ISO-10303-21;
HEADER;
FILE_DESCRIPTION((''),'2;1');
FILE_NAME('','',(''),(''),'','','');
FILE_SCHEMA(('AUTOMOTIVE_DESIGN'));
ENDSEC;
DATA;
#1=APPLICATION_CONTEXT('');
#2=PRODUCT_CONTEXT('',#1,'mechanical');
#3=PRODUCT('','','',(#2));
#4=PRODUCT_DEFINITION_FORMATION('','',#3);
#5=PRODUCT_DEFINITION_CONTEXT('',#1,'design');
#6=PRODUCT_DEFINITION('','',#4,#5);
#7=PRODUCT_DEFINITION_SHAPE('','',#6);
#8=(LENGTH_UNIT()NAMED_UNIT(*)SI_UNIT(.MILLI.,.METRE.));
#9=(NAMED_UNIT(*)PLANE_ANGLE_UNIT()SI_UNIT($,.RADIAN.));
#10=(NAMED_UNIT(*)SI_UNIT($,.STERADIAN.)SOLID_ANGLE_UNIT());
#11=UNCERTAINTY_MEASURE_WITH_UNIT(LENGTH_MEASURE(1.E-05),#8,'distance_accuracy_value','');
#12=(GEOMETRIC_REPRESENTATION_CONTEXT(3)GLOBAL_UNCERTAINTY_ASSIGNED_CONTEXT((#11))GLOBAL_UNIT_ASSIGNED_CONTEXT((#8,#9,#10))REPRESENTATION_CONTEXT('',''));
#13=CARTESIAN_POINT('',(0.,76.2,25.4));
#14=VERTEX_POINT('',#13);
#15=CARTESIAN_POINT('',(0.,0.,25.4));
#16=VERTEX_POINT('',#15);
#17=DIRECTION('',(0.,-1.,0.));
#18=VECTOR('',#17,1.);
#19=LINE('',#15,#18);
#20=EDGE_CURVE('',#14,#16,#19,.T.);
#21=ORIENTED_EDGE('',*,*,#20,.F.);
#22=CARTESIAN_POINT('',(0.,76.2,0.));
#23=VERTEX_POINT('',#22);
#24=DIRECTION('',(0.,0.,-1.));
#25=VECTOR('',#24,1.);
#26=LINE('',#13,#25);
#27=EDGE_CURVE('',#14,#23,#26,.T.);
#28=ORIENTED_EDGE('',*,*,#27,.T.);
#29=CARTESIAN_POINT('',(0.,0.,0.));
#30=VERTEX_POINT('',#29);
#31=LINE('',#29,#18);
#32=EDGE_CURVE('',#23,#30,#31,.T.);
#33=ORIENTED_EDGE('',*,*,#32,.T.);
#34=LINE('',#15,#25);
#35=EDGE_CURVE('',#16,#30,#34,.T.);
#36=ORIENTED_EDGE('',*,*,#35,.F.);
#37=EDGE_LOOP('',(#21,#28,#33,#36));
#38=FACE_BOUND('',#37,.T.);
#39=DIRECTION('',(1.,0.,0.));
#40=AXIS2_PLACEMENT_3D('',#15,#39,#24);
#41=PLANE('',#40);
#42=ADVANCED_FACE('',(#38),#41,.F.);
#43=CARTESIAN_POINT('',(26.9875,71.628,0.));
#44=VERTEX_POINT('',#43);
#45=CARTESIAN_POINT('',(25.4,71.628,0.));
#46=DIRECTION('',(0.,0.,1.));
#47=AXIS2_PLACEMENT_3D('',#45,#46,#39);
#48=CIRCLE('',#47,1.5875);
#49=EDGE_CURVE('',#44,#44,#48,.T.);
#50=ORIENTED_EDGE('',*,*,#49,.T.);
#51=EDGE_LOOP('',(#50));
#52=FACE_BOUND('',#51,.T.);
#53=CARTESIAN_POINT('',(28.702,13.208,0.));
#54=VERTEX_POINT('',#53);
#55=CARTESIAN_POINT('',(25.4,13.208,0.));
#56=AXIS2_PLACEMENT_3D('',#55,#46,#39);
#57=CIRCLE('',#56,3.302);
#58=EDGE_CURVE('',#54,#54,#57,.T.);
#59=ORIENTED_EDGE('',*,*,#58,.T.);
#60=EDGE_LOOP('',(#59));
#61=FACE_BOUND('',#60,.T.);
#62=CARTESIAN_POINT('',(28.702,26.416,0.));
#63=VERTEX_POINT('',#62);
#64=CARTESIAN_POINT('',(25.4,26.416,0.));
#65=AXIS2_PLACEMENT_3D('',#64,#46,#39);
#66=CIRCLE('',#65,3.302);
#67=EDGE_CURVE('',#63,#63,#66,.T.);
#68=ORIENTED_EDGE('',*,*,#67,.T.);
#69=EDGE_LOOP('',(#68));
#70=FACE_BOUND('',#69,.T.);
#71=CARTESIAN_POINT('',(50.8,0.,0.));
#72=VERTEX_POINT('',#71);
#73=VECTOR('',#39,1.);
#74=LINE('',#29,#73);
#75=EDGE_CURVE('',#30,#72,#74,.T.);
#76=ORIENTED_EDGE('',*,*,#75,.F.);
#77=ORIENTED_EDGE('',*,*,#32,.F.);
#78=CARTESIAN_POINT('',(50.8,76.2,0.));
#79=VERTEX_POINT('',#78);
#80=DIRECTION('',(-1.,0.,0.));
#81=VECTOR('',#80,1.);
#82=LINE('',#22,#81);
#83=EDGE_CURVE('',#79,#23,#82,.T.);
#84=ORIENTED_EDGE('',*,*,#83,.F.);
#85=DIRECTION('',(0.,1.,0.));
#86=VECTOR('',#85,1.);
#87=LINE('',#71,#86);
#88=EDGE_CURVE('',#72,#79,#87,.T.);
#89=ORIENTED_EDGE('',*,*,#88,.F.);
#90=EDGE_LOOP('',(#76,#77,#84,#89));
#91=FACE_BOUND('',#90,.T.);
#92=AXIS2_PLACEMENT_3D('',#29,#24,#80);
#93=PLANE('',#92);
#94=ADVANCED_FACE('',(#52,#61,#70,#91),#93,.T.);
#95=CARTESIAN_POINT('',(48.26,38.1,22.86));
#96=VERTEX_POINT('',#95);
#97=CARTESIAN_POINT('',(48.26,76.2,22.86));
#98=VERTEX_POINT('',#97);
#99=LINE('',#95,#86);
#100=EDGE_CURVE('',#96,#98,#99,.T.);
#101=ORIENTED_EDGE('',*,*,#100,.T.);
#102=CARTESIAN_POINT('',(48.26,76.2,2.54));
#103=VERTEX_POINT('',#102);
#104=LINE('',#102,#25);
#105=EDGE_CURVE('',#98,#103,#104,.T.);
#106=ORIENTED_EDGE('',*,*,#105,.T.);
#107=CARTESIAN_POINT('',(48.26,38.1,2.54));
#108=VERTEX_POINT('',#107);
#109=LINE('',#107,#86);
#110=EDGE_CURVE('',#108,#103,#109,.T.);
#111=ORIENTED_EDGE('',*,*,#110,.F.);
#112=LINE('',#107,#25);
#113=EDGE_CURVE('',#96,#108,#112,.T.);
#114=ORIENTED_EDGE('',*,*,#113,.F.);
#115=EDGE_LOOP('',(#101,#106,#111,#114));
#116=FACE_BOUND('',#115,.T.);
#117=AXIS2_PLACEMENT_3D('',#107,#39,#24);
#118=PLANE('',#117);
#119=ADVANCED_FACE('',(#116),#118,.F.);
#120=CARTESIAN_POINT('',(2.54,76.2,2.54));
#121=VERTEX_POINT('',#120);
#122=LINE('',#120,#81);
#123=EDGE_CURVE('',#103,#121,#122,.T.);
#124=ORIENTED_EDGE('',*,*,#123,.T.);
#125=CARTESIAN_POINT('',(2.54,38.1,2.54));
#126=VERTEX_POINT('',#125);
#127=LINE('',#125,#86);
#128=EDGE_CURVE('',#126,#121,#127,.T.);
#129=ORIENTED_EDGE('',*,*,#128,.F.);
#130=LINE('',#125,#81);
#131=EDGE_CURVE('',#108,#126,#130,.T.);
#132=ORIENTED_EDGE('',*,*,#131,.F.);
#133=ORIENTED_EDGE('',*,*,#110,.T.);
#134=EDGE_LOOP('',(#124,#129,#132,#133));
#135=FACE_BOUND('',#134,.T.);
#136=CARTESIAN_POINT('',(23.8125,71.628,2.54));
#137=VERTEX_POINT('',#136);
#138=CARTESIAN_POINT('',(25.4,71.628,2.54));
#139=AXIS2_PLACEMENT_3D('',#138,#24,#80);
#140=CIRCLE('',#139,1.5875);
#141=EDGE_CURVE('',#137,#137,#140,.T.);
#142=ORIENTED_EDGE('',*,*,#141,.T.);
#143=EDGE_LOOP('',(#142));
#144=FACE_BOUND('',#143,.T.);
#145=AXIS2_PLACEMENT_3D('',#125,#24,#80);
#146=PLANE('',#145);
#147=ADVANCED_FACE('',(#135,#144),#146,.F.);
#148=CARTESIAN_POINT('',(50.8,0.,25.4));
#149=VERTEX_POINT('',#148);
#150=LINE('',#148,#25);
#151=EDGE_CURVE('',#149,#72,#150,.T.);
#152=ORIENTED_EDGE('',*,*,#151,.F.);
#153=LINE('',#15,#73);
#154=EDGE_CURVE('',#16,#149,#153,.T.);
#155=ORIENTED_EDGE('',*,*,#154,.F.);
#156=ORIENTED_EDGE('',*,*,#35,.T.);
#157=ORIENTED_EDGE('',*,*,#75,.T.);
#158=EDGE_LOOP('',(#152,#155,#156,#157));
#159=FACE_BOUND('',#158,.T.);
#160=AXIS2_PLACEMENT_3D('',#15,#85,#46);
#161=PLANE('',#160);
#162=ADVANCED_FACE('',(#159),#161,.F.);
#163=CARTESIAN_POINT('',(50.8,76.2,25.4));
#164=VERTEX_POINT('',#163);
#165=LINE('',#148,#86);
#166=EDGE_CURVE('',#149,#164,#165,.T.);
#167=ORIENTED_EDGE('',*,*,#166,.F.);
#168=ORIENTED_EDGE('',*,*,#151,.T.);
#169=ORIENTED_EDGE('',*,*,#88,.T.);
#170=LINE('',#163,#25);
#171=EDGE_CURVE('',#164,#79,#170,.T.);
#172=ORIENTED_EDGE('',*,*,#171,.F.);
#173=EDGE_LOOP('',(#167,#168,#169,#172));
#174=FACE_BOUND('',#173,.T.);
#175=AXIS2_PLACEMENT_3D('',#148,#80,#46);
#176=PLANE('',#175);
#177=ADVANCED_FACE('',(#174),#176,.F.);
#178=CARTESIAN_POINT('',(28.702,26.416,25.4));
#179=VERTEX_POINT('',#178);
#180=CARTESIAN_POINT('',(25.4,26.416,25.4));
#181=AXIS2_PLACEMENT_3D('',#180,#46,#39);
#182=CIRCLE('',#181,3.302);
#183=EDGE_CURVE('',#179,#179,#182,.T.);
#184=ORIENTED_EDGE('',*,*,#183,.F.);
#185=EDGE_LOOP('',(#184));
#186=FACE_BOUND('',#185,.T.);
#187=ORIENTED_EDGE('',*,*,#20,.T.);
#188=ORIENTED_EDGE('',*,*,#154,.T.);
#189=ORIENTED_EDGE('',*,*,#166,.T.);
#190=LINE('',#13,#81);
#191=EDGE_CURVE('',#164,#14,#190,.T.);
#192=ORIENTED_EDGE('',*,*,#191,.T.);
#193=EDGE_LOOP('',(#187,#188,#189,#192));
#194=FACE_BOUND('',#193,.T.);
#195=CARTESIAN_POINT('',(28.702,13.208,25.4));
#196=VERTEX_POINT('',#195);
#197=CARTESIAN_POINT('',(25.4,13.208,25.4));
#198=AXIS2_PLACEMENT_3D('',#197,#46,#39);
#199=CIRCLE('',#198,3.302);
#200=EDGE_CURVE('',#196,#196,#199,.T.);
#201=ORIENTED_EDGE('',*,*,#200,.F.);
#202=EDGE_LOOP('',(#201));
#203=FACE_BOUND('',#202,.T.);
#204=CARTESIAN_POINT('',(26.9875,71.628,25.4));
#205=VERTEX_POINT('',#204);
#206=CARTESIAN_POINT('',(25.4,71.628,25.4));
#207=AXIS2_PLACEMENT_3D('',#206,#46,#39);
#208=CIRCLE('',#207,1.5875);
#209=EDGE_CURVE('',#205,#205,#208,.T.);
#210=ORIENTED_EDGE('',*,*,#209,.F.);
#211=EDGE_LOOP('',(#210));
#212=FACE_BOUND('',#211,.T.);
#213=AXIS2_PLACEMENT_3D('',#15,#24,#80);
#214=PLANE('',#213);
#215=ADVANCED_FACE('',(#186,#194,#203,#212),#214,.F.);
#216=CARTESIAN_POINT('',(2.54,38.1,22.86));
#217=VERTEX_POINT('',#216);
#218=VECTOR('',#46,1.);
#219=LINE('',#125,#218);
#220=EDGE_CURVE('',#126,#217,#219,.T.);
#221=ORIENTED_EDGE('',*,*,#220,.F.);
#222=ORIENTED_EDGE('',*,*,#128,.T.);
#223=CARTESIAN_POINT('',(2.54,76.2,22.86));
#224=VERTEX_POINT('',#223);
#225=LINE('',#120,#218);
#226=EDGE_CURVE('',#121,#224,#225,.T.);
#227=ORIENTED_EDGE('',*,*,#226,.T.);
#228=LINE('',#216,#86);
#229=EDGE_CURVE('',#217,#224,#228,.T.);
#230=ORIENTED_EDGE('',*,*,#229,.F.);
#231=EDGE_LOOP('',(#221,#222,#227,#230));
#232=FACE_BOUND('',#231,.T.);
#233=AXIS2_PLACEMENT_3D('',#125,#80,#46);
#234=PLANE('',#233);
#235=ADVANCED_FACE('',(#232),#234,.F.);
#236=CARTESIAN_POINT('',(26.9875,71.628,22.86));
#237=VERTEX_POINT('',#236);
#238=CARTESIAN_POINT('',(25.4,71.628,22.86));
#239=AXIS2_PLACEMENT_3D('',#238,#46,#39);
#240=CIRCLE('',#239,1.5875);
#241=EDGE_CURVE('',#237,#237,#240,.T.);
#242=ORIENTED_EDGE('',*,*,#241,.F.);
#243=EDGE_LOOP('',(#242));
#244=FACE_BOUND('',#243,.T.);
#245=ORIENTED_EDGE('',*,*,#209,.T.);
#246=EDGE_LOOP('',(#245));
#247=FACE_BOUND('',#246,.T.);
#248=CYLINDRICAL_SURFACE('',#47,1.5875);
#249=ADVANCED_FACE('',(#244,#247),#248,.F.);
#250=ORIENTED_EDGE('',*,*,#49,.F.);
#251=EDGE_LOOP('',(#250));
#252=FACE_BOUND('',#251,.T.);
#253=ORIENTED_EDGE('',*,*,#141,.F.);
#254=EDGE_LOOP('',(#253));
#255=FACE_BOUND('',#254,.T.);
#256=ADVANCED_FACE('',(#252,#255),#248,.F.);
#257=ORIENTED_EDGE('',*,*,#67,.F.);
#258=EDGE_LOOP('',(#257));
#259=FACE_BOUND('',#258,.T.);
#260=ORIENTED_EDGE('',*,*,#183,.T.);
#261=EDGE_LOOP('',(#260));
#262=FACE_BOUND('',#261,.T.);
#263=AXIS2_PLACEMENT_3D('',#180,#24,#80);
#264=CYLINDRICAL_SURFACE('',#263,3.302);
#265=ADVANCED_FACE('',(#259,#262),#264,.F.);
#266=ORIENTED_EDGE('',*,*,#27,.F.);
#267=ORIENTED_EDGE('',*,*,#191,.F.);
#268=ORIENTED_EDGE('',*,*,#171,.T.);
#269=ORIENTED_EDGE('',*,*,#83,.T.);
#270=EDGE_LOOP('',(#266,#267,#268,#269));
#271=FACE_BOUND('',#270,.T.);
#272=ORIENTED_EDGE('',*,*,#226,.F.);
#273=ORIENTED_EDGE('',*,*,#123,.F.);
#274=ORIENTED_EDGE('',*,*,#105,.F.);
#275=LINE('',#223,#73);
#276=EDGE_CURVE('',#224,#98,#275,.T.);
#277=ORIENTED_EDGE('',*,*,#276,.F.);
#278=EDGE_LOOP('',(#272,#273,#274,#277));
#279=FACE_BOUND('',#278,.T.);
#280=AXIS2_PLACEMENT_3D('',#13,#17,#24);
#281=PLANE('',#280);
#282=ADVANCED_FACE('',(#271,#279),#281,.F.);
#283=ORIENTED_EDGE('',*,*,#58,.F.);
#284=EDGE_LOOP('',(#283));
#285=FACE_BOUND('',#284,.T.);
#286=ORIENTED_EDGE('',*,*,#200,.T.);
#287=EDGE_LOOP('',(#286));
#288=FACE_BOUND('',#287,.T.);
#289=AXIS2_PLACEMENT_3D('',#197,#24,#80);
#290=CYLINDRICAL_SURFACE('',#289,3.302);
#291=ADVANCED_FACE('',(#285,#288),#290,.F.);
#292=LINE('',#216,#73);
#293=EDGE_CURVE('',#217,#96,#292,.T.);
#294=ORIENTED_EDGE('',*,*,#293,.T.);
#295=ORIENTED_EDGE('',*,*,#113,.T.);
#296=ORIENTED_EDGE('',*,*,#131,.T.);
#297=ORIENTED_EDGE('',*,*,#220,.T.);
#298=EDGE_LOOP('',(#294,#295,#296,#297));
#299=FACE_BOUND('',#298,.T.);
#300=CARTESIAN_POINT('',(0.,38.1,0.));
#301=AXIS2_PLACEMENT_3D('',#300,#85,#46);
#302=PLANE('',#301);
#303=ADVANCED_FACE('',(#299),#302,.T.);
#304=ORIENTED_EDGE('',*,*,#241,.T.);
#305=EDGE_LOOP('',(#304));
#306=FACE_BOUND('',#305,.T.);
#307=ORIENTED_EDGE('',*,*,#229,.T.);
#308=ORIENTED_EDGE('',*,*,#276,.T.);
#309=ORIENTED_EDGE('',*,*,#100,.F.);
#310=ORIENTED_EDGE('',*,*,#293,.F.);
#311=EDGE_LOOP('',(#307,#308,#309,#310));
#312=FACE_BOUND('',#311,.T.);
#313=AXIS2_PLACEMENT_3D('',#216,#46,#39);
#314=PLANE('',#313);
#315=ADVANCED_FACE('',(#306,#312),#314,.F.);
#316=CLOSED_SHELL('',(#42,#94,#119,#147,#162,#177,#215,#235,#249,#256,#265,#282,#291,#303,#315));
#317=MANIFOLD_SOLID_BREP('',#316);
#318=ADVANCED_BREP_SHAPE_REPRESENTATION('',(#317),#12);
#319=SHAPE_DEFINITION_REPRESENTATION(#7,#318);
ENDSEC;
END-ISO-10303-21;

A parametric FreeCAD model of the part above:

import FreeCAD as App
import Part
import Sketcher
from FreeCAD import Vector
Q = App.Units.Quantity

doc = App.newDocument("Part")
body = doc.addObject("PartDesign::Body", "Body")

sketch1 = body.newObject("Sketcher::SketchObject", "Sketch")
sketch1.AttachmentSupport = (doc.getObject("XY_Plane"), [""])
sketch1.MapMode = "FlatFace"
sketch1.addGeometry([
    Part.LineSegment(Vector(0, 76.2, 0), Vector(0, 0, 0)),
    Part.LineSegment(Vector(0, 0, 0), Vector(50.8, 0, 0)),
    Part.LineSegment(Vector(50.8, 0, 0), Vector(50.8, 76.2, 0)),
    Part.LineSegment(Vector(50.8, 76.2, 0), Vector(0, 76.2, 0)),
    Part.Circle(Vector(25.4, 13.2, 0), Vector(0, 0, 1), 3.3),
    Part.Circle(Vector(25.4, 26.4, 0), Vector(0, 0, 1), 3.3),
], False)
sketch1.addConstraint([
    Sketcher.Constraint("Coincident", 0, 2, 1, 1),
    Sketcher.Constraint("Coincident", 1, 2, 2, 1),
    Sketcher.Constraint("Coincident", 2, 2, 3, 1),
    Sketcher.Constraint("Coincident", 3, 2, 0, 1),
    Sketcher.Constraint("Vertical", 0),
    Sketcher.Constraint("Horizontal", 1),
    Sketcher.Constraint("Vertical", 2),
    Sketcher.Constraint("Horizontal", 3),
    Sketcher.Constraint("Coincident", 0, 2, -1, 1),
    Sketcher.Constraint("Equal", 4, 5),
    Sketcher.Constraint("Vertical", 4, 3, 5, 3),
    Sketcher.Constraint("Diameter", 4, Q("0.26 in")),
    Sketcher.Constraint("DistanceX", 1, 1, 1, 2, Q("2 in")),
    Sketcher.Constraint("DistanceY", 0, 2, 0, 1, Q("3 in")),
    Sketcher.Constraint("DistanceX", -1, 1, 4, 3, Q("1 in")),
    Sketcher.Constraint("DistanceY", -1, 1, 4, 3, Q("0.52 in")),
    Sketcher.Constraint("DistanceY", -1, 1, 5, 3, Q("1.04 in")),
])
pad1 = body.newObject("PartDesign::Pad", "Pad")
pad1.Profile = sketch1
pad1.Length = Q("1 in")

sketch2 = body.newObject("Sketcher::SketchObject", "Sketch001")
sketch2.AttachmentSupport = (doc.getObject("XZ_Plane"), [""])
sketch2.MapMode = "FlatFace"
sketch2.AttachmentOffset = App.Placement(Vector(0, 0, -3 * 25.4), App.Rotation())
sketch2.addGeometry([
    Part.LineSegment(Vector(3, 3, 0), Vector(3, 23, 0)),
    Part.LineSegment(Vector(3, 23, 0), Vector(48, 23, 0)),
    Part.LineSegment(Vector(48, 23, 0), Vector(48, 3, 0)),
    Part.LineSegment(Vector(48, 3, 0), Vector(3, 3, 0)),
], False)
sketch2.addConstraint([
    Sketcher.Constraint("Coincident", 0, 2, 1, 1),
    Sketcher.Constraint("Coincident", 1, 2, 2, 1),
    Sketcher.Constraint("Coincident", 2, 2, 3, 1),
    Sketcher.Constraint("Coincident", 3, 2, 0, 1),
    Sketcher.Constraint("Vertical", 0),
    Sketcher.Constraint("Horizontal", 1),
    Sketcher.Constraint("Vertical", 2),
    Sketcher.Constraint("Horizontal", 3),
    Sketcher.Constraint("DistanceX", 1, 1, 1, 2, Q("1.8 in")),
    Sketcher.Constraint("DistanceY", 0, 1, 0, 2, Q("0.8 in")),
    Sketcher.Constraint("DistanceX", -1, 1, 0, 2, Q("0.1 in")),
    Sketcher.Constraint("DistanceY", -1, 1, 0, 2, Q("0.9 in")),
])
pocket1 = body.newObject("PartDesign::Pocket", "Pocket")
pocket1.Profile = sketch2
pocket1.Length = Q("1.5 in")
pocket1.Reversed = True

sketch3 = body.newObject("Sketcher::SketchObject", "Sketch002")
sketch3.AttachmentSupport = (doc.getObject("XY_Plane"), [""])
sketch3.MapMode = "FlatFace"
sketch3.AttachmentOffset = App.Placement(Vector(0, 0, 1 * 25.4), App.Rotation())
sketch3.addGeometry(Part.Circle(Vector(25.4, 71.6, 0), Vector(0, 0, 1), 1.6), False)
sketch3.addConstraint([
    Sketcher.Constraint("Diameter", 0, Q("0.125 in")),
    Sketcher.Constraint("DistanceX", -1, 1, 0, 3, Q("1 in")),
    Sketcher.Constraint("DistanceY", -1, 1, 0, 3, Q("2.82 in")),
])
pocket2 = body.newObject("PartDesign::Pocket", "Pocket001")
pocket2.Profile = sketch3
pocket2.Type = "ThroughAll"

doc.recompute()
